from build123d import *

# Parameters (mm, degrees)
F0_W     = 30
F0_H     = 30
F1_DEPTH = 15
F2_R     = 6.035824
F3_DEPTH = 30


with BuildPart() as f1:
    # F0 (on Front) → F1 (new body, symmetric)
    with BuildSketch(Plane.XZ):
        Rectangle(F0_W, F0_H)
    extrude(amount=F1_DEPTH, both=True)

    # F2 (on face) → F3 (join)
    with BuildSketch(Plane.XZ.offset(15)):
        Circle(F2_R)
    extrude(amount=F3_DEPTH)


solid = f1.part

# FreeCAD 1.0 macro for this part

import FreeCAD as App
import Part
import Sketcher


def add_polygon(sketch, points):
    """Adds a closed chain of lines whose ends are joined by coincident constraints."""
    first, n = sketch.GeometryCount, len(points)
    for a, b in zip(points, points[1:] + points[:1]):
        sketch.addGeometry(Part.LineSegment(App.Vector(*a, 0), App.Vector(*b, 0)), False)
    for i in range(n):
        sketch.addConstraint(Sketcher.Constraint("Coincident", first + i, 2, first + (i + 1) % n, 1))

doc = App.newDocument("Part")
body = doc.addObject("PartDesign::Body", "Body")

# Sketch on XZ plane
sketch1 = body.newObject("Sketcher::SketchObject", "Sketch")
sketch1.AttachmentSupport = (doc.getObject("XZ_Plane"), [""])
sketch1.MapMode = "FlatFace"
add_polygon(sketch1, [(-15, 15), (-15, -15), (15, -15), (15, 15)])  # lines 0-3
sketch1.addConstraint([
    Sketcher.Constraint("Vertical", 0),
    Sketcher.Constraint("Horizontal", 1),
    Sketcher.Constraint("Vertical", 2),
    Sketcher.Constraint("Horizontal", 3),
    Sketcher.Constraint("Symmetric", 0, 2, 2, 2, -1, 1),
    Sketcher.Constraint("Equal", 3, 0),
    Sketcher.Constraint("DistanceX", 1, 1, 1, 2, 30.0),
])
pad1 = body.newObject("PartDesign::Pad", "Pad")
pad1.Profile = sketch1
pad1.Length = 30
pad1.Midplane = True

# Sketch on XZ plane
sketch2 = body.newObject("Sketcher::SketchObject", "Sketch001")
sketch2.AttachmentSupport = (doc.getObject("XZ_Plane"), [""])
sketch2.MapMode = "FlatFace"
sketch2.AttachmentOffset = App.Placement(App.Vector(0, 0, 15), App.Rotation())
sketch2.addGeometry(Part.Circle(App.Vector(0, 0, 0), App.Vector(0, 0, 1), 6), False)
sketch2.addConstraint([
    Sketcher.Constraint("Coincident", 0, 3, -1, 1),
    Sketcher.Constraint("Diameter", 0, 12.071648),
])
pad2 = body.newObject("PartDesign::Pad", "Pad001")
pad2.Profile = sketch2
pad2.Length = 30

doc.recompute()
